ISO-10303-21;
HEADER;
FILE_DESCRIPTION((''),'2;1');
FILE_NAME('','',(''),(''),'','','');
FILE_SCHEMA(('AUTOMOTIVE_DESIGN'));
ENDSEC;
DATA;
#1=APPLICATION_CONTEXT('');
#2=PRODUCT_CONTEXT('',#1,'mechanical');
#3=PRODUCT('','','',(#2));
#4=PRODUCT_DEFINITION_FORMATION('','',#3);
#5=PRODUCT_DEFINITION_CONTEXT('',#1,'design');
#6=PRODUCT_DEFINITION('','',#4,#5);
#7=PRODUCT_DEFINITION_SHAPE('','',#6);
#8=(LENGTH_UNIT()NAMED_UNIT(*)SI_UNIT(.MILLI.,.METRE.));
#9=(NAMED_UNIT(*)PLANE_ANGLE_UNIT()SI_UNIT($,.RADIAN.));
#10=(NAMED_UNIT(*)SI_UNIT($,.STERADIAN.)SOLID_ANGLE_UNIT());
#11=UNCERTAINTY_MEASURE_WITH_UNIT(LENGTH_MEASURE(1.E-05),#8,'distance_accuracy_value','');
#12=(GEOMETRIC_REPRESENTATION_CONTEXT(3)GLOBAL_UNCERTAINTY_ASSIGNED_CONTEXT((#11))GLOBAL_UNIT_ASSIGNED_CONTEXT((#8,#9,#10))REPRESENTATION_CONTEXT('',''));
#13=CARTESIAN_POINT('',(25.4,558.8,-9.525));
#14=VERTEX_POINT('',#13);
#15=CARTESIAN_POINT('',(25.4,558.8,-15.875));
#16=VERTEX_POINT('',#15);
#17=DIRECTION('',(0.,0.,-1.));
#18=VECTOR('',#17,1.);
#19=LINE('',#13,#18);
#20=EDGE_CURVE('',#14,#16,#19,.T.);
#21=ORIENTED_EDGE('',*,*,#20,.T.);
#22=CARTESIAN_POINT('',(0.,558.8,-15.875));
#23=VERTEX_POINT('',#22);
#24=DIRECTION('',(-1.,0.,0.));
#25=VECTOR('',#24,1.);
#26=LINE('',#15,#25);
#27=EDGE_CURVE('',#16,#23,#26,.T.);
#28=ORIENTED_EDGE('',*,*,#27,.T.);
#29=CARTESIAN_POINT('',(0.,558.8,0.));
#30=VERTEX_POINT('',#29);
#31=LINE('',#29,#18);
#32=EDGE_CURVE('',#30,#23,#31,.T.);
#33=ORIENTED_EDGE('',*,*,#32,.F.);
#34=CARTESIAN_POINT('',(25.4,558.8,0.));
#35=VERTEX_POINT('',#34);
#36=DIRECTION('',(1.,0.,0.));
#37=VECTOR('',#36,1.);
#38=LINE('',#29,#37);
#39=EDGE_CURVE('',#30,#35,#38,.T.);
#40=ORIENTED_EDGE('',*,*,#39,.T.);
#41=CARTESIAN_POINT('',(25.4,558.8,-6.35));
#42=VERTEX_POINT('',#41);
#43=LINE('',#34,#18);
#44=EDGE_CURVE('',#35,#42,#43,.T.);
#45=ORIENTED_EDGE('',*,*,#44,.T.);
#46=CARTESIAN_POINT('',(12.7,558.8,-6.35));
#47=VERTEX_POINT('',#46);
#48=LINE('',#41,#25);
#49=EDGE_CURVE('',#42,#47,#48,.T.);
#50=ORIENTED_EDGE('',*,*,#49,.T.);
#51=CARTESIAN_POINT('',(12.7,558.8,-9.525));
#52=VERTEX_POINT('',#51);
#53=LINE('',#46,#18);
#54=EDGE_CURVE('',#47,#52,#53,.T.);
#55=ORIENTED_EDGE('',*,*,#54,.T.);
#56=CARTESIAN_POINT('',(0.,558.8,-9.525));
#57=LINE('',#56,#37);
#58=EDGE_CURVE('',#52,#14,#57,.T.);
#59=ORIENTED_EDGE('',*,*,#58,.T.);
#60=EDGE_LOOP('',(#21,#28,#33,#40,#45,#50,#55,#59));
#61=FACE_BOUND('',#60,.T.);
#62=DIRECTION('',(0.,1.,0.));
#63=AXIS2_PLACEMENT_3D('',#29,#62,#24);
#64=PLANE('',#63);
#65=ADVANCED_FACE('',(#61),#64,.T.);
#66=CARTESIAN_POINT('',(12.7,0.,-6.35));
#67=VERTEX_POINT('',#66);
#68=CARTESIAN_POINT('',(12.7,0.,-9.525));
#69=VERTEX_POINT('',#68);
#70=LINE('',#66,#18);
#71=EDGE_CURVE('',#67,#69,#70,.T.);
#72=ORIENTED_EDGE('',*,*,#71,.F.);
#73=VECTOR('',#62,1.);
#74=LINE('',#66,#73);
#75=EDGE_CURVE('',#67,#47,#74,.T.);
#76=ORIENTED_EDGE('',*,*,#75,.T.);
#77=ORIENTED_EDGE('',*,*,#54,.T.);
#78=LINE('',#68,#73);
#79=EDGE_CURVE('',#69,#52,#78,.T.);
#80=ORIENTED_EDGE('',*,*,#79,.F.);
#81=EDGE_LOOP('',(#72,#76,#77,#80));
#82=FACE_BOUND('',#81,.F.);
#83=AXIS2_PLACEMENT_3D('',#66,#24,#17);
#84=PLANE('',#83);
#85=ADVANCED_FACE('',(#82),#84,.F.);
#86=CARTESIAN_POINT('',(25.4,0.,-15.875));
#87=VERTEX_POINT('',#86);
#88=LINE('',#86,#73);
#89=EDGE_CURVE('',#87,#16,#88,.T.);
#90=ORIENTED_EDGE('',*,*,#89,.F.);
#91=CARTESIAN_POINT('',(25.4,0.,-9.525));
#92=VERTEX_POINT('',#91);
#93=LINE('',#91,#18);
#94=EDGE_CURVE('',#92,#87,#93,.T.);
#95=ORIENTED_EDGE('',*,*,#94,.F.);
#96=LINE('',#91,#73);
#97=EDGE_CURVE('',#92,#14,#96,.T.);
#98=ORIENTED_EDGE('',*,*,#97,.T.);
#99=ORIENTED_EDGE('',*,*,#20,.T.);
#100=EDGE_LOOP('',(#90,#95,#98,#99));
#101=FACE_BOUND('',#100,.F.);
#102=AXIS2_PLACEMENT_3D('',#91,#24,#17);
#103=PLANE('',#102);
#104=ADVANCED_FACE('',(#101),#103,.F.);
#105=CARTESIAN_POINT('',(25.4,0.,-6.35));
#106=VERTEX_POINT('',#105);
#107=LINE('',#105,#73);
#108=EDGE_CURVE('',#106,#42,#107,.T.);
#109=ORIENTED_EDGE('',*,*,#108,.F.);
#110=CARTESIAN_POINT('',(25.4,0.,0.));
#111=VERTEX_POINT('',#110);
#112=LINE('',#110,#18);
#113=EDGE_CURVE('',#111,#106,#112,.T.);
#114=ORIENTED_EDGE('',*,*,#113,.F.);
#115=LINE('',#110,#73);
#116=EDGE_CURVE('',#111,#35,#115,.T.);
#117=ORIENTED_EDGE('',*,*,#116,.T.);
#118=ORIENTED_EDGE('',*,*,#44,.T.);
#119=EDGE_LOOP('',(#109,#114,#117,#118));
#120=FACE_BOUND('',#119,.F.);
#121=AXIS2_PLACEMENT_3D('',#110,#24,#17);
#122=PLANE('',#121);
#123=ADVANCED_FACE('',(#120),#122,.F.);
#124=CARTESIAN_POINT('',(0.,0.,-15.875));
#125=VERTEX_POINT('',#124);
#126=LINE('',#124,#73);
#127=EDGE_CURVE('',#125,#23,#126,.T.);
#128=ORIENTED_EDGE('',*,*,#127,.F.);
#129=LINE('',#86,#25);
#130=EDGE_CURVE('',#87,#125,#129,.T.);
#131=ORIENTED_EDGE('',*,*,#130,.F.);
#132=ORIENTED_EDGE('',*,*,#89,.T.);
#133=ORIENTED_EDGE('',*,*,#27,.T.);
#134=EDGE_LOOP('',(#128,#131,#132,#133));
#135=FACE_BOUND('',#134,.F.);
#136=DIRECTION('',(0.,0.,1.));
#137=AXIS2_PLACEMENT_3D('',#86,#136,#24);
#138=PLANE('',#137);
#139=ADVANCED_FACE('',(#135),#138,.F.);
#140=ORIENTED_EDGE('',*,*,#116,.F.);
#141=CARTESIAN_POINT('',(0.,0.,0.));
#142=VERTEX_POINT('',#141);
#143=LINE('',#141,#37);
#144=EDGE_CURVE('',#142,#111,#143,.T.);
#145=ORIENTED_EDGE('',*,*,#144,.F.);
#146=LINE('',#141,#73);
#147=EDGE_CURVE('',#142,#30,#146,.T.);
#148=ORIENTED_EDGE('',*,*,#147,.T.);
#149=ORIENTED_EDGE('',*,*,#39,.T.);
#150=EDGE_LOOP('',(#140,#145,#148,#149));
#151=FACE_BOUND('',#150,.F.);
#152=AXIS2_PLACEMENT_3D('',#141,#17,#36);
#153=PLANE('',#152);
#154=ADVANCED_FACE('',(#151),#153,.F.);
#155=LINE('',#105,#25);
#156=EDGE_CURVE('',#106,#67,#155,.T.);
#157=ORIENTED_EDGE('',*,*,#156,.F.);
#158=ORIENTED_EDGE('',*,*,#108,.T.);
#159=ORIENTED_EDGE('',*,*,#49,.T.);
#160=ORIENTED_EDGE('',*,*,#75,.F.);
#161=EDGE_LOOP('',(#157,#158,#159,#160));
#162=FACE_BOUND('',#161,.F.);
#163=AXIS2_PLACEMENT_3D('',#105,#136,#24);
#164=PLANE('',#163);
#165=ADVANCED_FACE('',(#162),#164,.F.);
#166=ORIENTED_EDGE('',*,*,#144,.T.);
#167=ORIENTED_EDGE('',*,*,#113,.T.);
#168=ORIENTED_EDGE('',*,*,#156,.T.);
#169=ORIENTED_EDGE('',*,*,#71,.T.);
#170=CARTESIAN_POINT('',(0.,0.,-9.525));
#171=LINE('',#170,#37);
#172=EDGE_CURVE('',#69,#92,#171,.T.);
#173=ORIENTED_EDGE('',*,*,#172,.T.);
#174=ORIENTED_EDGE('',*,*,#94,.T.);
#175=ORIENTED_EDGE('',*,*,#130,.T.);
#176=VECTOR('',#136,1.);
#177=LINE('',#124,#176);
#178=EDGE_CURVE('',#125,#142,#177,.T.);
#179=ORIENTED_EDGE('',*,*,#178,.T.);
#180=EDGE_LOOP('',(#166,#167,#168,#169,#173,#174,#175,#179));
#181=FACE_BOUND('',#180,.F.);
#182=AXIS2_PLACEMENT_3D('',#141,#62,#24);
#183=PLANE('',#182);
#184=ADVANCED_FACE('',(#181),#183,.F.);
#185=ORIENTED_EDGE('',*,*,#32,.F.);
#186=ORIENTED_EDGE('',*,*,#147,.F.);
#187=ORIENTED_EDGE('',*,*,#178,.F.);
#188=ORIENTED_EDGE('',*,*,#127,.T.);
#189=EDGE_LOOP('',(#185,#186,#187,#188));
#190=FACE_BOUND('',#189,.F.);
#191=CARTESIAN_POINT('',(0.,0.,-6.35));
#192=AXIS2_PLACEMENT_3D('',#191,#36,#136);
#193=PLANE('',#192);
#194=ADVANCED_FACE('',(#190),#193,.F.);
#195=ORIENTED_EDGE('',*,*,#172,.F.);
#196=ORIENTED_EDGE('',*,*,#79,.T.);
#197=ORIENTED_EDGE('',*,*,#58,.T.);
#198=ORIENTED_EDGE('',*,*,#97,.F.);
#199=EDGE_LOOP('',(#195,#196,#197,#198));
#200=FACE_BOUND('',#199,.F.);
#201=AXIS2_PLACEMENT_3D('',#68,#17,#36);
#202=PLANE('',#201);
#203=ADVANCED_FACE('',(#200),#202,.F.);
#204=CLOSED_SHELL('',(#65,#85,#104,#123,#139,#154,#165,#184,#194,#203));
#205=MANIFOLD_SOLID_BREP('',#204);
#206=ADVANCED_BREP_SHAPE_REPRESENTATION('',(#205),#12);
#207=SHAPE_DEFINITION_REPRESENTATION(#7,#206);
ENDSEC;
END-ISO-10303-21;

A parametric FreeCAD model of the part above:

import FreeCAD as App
import Part
import Sketcher

V = App.Vector
Q = App.Units.Quantity


def add_polygon(sketch, points):
    """Adds a closed chain of lines whose ends are joined by coincident constraints."""
    first, n = sketch.GeometryCount, len(points)
    for a, b in zip(points, points[1:] + points[:1]):
        sketch.addGeometry(Part.LineSegment(App.Vector(*a, 0), App.Vector(*b, 0)), False)
    for i in range(n):
        sketch.addConstraint(Sketcher.Constraint("Coincident", first + i, 2, first + (i + 1) % n, 1))

doc = App.newDocument("Part")
body = doc.addObject("PartDesign::Body", "Body")

sketch1 = doc.addObject("Sketcher::SketchObject", "Sketch")
body.addObject(sketch1)
sketch1.AttachmentSupport = (doc.XZ_Plane, [""])
sketch1.MapMode = "FlatFace"
add_polygon(sketch1, [(0, 0), (25.4, 0), (25.4, -6.3), (12.7, -6.3), (12.7, -9.5), (25.4, -9.5), (25.4, -15.9), (0, -15.9)])
sketch1.addConstraint([
    Sketcher.Constraint("Horizontal", 0),
    Sketcher.Constraint("Vertical", 1),
    Sketcher.Constraint("Horizontal", 2),
    Sketcher.Constraint("Vertical", 3),
    Sketcher.Constraint("Horizontal", 4),
    Sketcher.Constraint("Vertical", 5),
    Sketcher.Constraint("Horizontal", 6),
    Sketcher.Constraint("Vertical", 7),
    Sketcher.Constraint("Coincident", 7, 2, -1, 1),
    Sketcher.Constraint("Vertical", 1, 2, 4, 2),
    Sketcher.Constraint("Equal", 1, 5),
    Sketcher.Constraint("DistanceX", 0, 1, 0, 2, Q("1 in")),
    Sketcher.Constraint("DistanceX", 2, 2, 2, 1, Q("0.5 in")),
    Sketcher.Constraint("DistanceY", 1, 2, 1, 1, Q("0.25 in")),
    Sketcher.Constraint("DistanceY", 3, 2, 3, 1, Q("0.125 in")),
])
pad1 = doc.addObject("PartDesign::Pad", "Pad")
body.addObject(pad1)
pad1.Profile = sketch1
pad1.Length = Q("22 in")
pad1.Reversed = True

doc.recompute()
